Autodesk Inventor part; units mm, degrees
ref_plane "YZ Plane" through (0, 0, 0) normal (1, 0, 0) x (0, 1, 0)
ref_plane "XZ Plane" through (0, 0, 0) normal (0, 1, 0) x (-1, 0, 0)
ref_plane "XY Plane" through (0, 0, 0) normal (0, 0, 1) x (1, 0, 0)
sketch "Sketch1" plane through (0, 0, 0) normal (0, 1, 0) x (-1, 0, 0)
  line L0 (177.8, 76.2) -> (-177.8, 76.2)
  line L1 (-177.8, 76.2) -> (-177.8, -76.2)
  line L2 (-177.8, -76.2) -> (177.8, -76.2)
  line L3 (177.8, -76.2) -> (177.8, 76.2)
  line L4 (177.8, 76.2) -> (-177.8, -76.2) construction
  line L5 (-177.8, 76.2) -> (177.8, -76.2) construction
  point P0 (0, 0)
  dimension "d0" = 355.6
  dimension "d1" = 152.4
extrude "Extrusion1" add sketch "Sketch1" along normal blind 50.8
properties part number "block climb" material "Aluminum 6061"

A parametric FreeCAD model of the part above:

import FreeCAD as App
import Part
import Sketcher
from FreeCAD import Vector
Q = App.Units.Quantity

doc = App.newDocument("Part")
body = doc.addObject("PartDesign::Body", "Body")

# Sketch on XZ plane
sketch1 = body.newObject("Sketcher::SketchObject", "Sketch")
sketch1.AttachmentSupport = (doc.getObject("XZ_Plane"), [""])
sketch1.MapMode = "FlatFace"
sketch1.addGeometry(Part.LineSegment(Vector(-178, -76, 0), Vector(-178, 76, 0)), False)
sketch1.addGeometry(Part.LineSegment(Vector(-178, 76, 0), Vector(178, 76, 0)), False)
sketch1.addGeometry(Part.LineSegment(Vector(178, 76, 0), Vector(178, -76, 0)), False)
sketch1.addGeometry(Part.LineSegment(Vector(178, -76, 0), Vector(-178, -76, 0)), False)
sketch1.addConstraint(Sketcher.Constraint("Coincident", 0, 2, 1, 1))
sketch1.addConstraint(Sketcher.Constraint("Coincident", 1, 2, 2, 1))
sketch1.addConstraint(Sketcher.Constraint("Coincident", 2, 2, 3, 1))
sketch1.addConstraint(Sketcher.Constraint("Coincident", 3, 2, 0, 1))
sketch1.addConstraint(Sketcher.Constraint("Vertical", 0))
sketch1.addConstraint(Sketcher.Constraint("Horizontal", 1))
sketch1.addConstraint(Sketcher.Constraint("Vertical", 2))
sketch1.addConstraint(Sketcher.Constraint("Horizontal", 3))
sketch1.addConstraint(Sketcher.Constraint("Symmetric", 0, 2, 2, 2, -1, 1))
sketch1.addConstraint(Sketcher.Constraint("DistanceX", 1, 1, 1, 2, Q("14 in")))
sketch1.addConstraint(Sketcher.Constraint("DistanceY", 0, 1, 0, 2, Q("6 in")))
pad1 = body.newObject("PartDesign::Pad", "Pad")
pad1.Profile = sketch1
pad1.Length = Q("2 in")
pad1.Reversed = True

doc.recompute()
